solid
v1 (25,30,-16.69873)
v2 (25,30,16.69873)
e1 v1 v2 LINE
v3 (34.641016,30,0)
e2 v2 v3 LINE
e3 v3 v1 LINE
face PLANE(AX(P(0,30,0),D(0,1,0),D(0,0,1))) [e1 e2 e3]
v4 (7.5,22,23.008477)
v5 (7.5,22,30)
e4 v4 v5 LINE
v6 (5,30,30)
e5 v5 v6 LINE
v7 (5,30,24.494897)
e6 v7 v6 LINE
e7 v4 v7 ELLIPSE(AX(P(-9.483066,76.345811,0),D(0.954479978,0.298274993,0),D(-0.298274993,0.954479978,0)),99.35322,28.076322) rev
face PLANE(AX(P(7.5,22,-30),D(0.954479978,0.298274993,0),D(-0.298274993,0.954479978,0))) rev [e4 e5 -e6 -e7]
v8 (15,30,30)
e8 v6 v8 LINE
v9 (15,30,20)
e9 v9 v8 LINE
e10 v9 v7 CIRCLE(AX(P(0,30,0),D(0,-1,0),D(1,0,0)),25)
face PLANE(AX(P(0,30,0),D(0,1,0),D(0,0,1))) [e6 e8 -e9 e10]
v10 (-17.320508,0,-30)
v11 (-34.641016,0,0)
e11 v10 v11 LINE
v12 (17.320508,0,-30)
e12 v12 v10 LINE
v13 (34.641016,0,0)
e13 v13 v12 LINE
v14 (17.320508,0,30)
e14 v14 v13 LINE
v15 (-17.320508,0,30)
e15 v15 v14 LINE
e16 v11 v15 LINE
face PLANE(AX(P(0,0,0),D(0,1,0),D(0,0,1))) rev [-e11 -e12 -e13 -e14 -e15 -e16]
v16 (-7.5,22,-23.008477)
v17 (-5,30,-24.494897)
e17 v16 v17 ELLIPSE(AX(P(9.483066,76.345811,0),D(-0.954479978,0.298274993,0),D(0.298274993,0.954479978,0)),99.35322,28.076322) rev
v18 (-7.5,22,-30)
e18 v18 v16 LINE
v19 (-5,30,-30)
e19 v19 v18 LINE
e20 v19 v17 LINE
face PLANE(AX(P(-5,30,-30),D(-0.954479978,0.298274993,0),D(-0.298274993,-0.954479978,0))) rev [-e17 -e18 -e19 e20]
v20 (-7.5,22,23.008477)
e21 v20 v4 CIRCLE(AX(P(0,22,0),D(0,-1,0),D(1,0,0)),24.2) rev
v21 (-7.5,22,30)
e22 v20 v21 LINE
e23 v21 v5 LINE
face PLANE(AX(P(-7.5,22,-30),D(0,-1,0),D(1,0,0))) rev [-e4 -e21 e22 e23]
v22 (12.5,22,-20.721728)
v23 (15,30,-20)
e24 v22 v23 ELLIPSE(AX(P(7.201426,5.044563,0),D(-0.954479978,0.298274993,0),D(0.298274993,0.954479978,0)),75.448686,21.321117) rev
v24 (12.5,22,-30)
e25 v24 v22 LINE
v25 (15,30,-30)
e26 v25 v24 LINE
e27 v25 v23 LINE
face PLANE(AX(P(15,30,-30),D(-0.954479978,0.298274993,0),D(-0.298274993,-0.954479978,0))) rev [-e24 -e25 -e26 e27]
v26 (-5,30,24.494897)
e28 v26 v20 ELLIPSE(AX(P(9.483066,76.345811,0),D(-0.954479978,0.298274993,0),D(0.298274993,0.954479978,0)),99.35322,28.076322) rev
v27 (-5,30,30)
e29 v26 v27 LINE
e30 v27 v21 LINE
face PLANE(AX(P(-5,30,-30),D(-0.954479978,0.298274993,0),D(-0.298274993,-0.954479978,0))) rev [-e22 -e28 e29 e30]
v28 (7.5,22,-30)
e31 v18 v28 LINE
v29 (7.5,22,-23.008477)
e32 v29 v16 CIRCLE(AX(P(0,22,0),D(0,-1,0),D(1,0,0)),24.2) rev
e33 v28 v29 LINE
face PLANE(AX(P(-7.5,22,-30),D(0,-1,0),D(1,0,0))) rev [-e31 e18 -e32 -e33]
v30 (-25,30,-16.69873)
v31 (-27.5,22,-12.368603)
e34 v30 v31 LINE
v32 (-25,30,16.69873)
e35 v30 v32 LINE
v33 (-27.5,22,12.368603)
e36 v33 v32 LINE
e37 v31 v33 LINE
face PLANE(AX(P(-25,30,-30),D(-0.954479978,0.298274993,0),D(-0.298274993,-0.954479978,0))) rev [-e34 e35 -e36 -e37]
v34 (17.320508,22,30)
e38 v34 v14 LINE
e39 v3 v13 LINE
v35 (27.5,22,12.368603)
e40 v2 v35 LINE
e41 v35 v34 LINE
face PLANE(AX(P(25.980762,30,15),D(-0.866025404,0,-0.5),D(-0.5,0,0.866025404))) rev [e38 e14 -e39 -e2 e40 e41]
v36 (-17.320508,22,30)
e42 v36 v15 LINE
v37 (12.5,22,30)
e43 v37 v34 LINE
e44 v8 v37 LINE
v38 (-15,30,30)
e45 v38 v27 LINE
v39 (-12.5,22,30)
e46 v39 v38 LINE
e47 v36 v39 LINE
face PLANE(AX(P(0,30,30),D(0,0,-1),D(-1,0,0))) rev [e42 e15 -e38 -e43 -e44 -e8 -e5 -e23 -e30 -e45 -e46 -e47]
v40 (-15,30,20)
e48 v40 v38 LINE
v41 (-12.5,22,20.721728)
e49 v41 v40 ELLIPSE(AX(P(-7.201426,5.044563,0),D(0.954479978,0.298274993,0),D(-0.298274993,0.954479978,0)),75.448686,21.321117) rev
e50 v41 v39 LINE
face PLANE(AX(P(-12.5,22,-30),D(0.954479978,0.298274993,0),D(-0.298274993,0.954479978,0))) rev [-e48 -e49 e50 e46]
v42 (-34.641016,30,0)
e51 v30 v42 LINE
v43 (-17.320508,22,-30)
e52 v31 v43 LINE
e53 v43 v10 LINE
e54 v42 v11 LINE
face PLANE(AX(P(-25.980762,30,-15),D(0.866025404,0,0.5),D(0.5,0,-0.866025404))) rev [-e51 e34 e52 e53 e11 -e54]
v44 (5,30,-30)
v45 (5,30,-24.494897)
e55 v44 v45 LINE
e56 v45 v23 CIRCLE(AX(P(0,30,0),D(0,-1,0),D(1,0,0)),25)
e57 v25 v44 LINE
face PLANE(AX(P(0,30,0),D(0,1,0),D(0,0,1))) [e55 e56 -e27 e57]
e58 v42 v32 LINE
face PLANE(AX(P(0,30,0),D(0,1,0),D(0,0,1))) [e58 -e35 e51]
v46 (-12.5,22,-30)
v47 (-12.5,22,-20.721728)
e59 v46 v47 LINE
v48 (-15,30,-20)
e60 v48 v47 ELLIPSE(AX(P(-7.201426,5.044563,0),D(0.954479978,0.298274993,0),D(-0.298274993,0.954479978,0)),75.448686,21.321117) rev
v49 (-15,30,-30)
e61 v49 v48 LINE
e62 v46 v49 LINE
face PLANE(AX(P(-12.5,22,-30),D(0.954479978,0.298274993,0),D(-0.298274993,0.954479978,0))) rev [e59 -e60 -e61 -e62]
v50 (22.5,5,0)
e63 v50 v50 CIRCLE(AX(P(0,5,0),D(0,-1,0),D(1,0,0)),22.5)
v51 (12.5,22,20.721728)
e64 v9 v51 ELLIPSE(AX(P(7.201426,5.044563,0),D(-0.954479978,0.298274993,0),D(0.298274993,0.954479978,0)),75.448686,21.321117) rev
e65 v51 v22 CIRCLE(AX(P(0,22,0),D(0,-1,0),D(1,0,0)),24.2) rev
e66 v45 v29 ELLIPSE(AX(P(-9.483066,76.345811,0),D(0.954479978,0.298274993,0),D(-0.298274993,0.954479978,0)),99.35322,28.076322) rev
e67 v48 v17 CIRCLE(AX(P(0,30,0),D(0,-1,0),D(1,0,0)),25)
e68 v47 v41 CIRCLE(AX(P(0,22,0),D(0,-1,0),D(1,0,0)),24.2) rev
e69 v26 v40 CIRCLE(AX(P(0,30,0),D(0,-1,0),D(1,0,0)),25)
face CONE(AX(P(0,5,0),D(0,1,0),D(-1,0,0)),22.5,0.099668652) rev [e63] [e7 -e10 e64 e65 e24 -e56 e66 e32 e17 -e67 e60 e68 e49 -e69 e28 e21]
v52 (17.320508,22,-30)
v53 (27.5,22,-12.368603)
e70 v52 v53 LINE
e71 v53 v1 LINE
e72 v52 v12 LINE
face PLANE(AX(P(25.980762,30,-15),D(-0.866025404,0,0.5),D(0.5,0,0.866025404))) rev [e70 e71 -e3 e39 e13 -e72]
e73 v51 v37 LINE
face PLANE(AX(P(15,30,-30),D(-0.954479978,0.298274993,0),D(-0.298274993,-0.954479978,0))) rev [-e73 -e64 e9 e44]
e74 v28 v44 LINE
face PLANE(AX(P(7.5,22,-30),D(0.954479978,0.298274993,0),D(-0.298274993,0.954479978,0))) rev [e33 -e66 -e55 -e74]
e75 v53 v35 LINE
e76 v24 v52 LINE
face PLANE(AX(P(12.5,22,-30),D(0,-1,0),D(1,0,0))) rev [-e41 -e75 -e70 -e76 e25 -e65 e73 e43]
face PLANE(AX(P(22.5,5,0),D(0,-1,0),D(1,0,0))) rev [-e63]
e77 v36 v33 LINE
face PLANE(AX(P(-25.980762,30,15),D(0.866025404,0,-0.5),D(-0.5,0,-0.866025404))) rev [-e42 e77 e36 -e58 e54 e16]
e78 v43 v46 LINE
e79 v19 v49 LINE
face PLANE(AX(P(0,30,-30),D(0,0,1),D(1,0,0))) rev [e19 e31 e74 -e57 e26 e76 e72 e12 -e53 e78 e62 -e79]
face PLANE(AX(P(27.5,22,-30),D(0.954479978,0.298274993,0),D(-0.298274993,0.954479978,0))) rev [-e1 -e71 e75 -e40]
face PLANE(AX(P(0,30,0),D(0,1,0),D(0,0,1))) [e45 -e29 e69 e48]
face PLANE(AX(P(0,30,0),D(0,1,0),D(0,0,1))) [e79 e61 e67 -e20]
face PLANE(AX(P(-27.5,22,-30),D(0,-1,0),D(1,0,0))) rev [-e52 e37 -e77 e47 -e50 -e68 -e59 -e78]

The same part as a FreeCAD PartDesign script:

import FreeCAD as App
import Part
import Sketcher

V = App.Vector
Q = App.Units.Quantity


def add_polygon(sketch, points):
    """Adds a closed chain of lines whose ends are joined by coincident constraints."""
    first, n = sketch.GeometryCount, len(points)
    for a, b in zip(points, points[1:] + points[:1]):
        sketch.addGeometry(Part.LineSegment(App.Vector(*a, 0), App.Vector(*b, 0)), False)
    for i in range(n):
        sketch.addConstraint(Sketcher.Constraint("Coincident", first + i, 2, first + (i + 1) % n, 1))

doc = App.newDocument("Part")
body = doc.addObject("PartDesign::Body", "Body")

# Sketch on XZ plane
sketch1 = doc.addObject("Sketcher::SketchObject", "Sketch")
body.addObject(sketch1)
sketch1.AttachmentSupport = (doc.XZ_Plane, [""])
sketch1.MapMode = "FlatFace"
add_polygon(sketch1, [(17, 30), (35, 0), (17, -30), (-17, -30), (-35, 0), (-17, 30)])  # lines 0-5
sketch1.addConstraint(Sketcher.Constraint("Horizontal", 2))
sketch1.addConstraint(Sketcher.Constraint("Horizontal", 5))
sketch1.addConstraint(Sketcher.Constraint("Symmetric", 0, 2, 3, 2, -1, 1))
sketch1.addConstraint(Sketcher.Constraint("Symmetric", 1, 2, 4, 2, -1, 1))
sketch1.addConstraint(Sketcher.Constraint("PointOnObject", 0, 2, -1))
sketch1.addConstraint(Sketcher.Constraint("Parallel", 0, 3))
sketch1.addConstraint(Sketcher.Constraint("Vertical", 2, 2, 4, 2))
sketch1.addConstraint(Sketcher.Constraint("Angle", 0, Q("-60 deg")))
sketch1.addConstraint(Sketcher.Constraint("DistanceY", 1, 2, -1, 1, Q("30 mm")))
sketch1.addConstraint(Sketcher.Constraint("DistanceX", 2, 2, 2, 1, Q("34.641016 mm")))
pad1 = doc.addObject("PartDesign::Pad", "Pad")
body.addObject(pad1)
pad1.Profile = sketch1
pad1.Length = 30
pad1.Reversed = True

# Sketch on XY plane
sketch2 = doc.addObject("Sketcher::SketchObject", "Sketch001")
body.addObject(sketch2)
sketch2.AttachmentSupport = (doc.XY_Plane, [""])
sketch2.MapMode = "FlatFace"
add_polygon(sketch2, [(25, 30), (0, 30), (0, 5), (22, 5)])  # lines 0-3
sketch2.addConstraint(Sketcher.Constraint("Horizontal", 0))
sketch2.addConstraint(Sketcher.Constraint("Vertical", 1))
sketch2.addConstraint(Sketcher.Constraint("Horizontal", 2))
sketch2.addConstraint(Sketcher.Constraint("PointOnObject", 0, 2, -2))
sketch2.addConstraint(Sketcher.Constraint("Equal", 0, 1))
sketch2.addConstraint(Sketcher.Constraint("DistanceX", 0, 2, 0, 1, Q("25 mm")))
sketch2.addConstraint(Sketcher.Constraint("DistanceX", 2, 1, 2, 2, Q("22.5 mm")))
sketch2.addConstraint(Sketcher.Constraint("DistanceY", -1, 1, 0, 2, Q("30 mm")))
groove = doc.addObject("PartDesign::Groove", "Groove")
body.addObject(groove)
groove.Profile = sketch2
groove.ReferenceAxis = (sketch2, ["V_Axis"])
groove.Angle = 360

# Sketch on XY plane
sketch3 = doc.addObject("Sketcher::SketchObject", "Sketch002")
body.addObject(sketch3)
sketch3.AttachmentSupport = (doc.XY_Plane, [""])
sketch3.MapMode = "FlatFace"
add_polygon(sketch3, [(-5, 30), (-8, 22), (8, 22), (5, 30)])  # lines 0-3
sketch3.addConstraint(Sketcher.Constraint("Horizontal", 1))
sketch3.addConstraint(Sketcher.Constraint("Horizontal", 3))
sketch3.addConstraint(Sketcher.Constraint("Equal", 0, 2))
sketch3.addConstraint(Sketcher.Constraint("DistanceX", 1, 1, 1, 2, Q("15 mm")))
sketch3.addConstraint(Sketcher.Constraint("DistanceX", 3, 2, 3, 1, Q("10 mm")))
sketch3.addConstraint(Sketcher.Constraint("DistanceY", -1, 1, 0, 2, Q("22 mm")))
sketch3.addConstraint(Sketcher.Constraint("DistanceX", -1, 1, 2, 2, Q("5 mm")))
sketch3.addConstraint(Sketcher.Constraint("DistanceY", -1, 1, 2, 2, Q("30 mm")))
pocket1 = doc.addObject("PartDesign::Pocket", "Pocket")
body.addObject(pocket1)
pocket1.Profile = sketch3
pocket1.Length = 111.544512
pocket1.Midplane = True
doc.recompute()

linearpattern = doc.addObject("PartDesign::LinearPattern", "LinearPattern")
body.addObject(linearpattern)
linearpattern.Originals = [pocket1]
linearpattern.Direction = (doc.X_Axis, [""])
linearpattern.Mode = "offset"
linearpattern.Offset = 20
linearpattern.Occurrences = 2
linearpattern.Reversed = True
body.Tip = linearpattern

# Sketch on XY plane
sketch4 = doc.addObject("Sketcher::SketchObject", "Sketch003")
body.addObject(sketch4)
sketch4.AttachmentSupport = (doc.XY_Plane, [""])
sketch4.MapMode = "FlatFace"
add_polygon(sketch4, [(-5, 30), (-8, 22), (8, 22), (5, 30)])  # lines 0-3
sketch4.addConstraint(Sketcher.Constraint("Horizontal", 1))
sketch4.addConstraint(Sketcher.Constraint("Horizontal", 3))
sketch4.addConstraint(Sketcher.Constraint("Equal", 0, 2))
sketch4.addConstraint(Sketcher.Constraint("DistanceX", 1, 1, 1, 2, Q("15 mm")))
sketch4.addConstraint(Sketcher.Constraint("DistanceX", 3, 2, 3, 1, Q("10 mm")))
sketch4.addConstraint(Sketcher.Constraint("DistanceY", -1, 1, 0, 2, Q("22 mm")))
sketch4.addConstraint(Sketcher.Constraint("DistanceX", -1, 1, 2, 2, Q("5 mm")))
sketch4.addConstraint(Sketcher.Constraint("DistanceY", -1, 1, 2, 2, Q("30 mm")))
pocket2 = doc.addObject("PartDesign::Pocket", "Pocket001")
body.addObject(pocket2)
pocket2.Profile = sketch4
pocket2.Length = 111.544512
pocket2.Midplane = True

# Sketch on XY plane
sketch5 = doc.addObject("Sketcher::SketchObject", "Sketch004")
body.addObject(sketch5)
sketch5.AttachmentSupport = (doc.XY_Plane, [""])
sketch5.MapMode = "FlatFace"
add_polygon(sketch5, [(15, 30), (12, 22), (28, 22), (25, 30)])  # lines 0-3
sketch5.addConstraint(Sketcher.Constraint("Horizontal", 1))
sketch5.addConstraint(Sketcher.Constraint("Horizontal", 3))
sketch5.addConstraint(Sketcher.Constraint("Equal", 0, 2))
sketch5.addConstraint(Sketcher.Constraint("DistanceX", 1, 1, 1, 2, Q("15 mm")))
sketch5.addConstraint(Sketcher.Constraint("DistanceX", 3, 2, 3, 1, Q("10 mm")))
sketch5.addConstraint(Sketcher.Constraint("DistanceY", -1, 1, 0, 2, Q("22 mm")))
sketch5.addConstraint(Sketcher.Constraint("DistanceX", -1, 1, 2, 2, Q("25 mm")))
sketch5.addConstraint(Sketcher.Constraint("DistanceY", -1, 1, 2, 2, Q("30 mm")))
pocket3 = doc.addObject("PartDesign::Pocket", "Pocket002")
body.addObject(pocket3)
pocket3.Profile = sketch5
pocket3.Length = 111.544512
pocket3.Midplane = True

doc.recompute()
